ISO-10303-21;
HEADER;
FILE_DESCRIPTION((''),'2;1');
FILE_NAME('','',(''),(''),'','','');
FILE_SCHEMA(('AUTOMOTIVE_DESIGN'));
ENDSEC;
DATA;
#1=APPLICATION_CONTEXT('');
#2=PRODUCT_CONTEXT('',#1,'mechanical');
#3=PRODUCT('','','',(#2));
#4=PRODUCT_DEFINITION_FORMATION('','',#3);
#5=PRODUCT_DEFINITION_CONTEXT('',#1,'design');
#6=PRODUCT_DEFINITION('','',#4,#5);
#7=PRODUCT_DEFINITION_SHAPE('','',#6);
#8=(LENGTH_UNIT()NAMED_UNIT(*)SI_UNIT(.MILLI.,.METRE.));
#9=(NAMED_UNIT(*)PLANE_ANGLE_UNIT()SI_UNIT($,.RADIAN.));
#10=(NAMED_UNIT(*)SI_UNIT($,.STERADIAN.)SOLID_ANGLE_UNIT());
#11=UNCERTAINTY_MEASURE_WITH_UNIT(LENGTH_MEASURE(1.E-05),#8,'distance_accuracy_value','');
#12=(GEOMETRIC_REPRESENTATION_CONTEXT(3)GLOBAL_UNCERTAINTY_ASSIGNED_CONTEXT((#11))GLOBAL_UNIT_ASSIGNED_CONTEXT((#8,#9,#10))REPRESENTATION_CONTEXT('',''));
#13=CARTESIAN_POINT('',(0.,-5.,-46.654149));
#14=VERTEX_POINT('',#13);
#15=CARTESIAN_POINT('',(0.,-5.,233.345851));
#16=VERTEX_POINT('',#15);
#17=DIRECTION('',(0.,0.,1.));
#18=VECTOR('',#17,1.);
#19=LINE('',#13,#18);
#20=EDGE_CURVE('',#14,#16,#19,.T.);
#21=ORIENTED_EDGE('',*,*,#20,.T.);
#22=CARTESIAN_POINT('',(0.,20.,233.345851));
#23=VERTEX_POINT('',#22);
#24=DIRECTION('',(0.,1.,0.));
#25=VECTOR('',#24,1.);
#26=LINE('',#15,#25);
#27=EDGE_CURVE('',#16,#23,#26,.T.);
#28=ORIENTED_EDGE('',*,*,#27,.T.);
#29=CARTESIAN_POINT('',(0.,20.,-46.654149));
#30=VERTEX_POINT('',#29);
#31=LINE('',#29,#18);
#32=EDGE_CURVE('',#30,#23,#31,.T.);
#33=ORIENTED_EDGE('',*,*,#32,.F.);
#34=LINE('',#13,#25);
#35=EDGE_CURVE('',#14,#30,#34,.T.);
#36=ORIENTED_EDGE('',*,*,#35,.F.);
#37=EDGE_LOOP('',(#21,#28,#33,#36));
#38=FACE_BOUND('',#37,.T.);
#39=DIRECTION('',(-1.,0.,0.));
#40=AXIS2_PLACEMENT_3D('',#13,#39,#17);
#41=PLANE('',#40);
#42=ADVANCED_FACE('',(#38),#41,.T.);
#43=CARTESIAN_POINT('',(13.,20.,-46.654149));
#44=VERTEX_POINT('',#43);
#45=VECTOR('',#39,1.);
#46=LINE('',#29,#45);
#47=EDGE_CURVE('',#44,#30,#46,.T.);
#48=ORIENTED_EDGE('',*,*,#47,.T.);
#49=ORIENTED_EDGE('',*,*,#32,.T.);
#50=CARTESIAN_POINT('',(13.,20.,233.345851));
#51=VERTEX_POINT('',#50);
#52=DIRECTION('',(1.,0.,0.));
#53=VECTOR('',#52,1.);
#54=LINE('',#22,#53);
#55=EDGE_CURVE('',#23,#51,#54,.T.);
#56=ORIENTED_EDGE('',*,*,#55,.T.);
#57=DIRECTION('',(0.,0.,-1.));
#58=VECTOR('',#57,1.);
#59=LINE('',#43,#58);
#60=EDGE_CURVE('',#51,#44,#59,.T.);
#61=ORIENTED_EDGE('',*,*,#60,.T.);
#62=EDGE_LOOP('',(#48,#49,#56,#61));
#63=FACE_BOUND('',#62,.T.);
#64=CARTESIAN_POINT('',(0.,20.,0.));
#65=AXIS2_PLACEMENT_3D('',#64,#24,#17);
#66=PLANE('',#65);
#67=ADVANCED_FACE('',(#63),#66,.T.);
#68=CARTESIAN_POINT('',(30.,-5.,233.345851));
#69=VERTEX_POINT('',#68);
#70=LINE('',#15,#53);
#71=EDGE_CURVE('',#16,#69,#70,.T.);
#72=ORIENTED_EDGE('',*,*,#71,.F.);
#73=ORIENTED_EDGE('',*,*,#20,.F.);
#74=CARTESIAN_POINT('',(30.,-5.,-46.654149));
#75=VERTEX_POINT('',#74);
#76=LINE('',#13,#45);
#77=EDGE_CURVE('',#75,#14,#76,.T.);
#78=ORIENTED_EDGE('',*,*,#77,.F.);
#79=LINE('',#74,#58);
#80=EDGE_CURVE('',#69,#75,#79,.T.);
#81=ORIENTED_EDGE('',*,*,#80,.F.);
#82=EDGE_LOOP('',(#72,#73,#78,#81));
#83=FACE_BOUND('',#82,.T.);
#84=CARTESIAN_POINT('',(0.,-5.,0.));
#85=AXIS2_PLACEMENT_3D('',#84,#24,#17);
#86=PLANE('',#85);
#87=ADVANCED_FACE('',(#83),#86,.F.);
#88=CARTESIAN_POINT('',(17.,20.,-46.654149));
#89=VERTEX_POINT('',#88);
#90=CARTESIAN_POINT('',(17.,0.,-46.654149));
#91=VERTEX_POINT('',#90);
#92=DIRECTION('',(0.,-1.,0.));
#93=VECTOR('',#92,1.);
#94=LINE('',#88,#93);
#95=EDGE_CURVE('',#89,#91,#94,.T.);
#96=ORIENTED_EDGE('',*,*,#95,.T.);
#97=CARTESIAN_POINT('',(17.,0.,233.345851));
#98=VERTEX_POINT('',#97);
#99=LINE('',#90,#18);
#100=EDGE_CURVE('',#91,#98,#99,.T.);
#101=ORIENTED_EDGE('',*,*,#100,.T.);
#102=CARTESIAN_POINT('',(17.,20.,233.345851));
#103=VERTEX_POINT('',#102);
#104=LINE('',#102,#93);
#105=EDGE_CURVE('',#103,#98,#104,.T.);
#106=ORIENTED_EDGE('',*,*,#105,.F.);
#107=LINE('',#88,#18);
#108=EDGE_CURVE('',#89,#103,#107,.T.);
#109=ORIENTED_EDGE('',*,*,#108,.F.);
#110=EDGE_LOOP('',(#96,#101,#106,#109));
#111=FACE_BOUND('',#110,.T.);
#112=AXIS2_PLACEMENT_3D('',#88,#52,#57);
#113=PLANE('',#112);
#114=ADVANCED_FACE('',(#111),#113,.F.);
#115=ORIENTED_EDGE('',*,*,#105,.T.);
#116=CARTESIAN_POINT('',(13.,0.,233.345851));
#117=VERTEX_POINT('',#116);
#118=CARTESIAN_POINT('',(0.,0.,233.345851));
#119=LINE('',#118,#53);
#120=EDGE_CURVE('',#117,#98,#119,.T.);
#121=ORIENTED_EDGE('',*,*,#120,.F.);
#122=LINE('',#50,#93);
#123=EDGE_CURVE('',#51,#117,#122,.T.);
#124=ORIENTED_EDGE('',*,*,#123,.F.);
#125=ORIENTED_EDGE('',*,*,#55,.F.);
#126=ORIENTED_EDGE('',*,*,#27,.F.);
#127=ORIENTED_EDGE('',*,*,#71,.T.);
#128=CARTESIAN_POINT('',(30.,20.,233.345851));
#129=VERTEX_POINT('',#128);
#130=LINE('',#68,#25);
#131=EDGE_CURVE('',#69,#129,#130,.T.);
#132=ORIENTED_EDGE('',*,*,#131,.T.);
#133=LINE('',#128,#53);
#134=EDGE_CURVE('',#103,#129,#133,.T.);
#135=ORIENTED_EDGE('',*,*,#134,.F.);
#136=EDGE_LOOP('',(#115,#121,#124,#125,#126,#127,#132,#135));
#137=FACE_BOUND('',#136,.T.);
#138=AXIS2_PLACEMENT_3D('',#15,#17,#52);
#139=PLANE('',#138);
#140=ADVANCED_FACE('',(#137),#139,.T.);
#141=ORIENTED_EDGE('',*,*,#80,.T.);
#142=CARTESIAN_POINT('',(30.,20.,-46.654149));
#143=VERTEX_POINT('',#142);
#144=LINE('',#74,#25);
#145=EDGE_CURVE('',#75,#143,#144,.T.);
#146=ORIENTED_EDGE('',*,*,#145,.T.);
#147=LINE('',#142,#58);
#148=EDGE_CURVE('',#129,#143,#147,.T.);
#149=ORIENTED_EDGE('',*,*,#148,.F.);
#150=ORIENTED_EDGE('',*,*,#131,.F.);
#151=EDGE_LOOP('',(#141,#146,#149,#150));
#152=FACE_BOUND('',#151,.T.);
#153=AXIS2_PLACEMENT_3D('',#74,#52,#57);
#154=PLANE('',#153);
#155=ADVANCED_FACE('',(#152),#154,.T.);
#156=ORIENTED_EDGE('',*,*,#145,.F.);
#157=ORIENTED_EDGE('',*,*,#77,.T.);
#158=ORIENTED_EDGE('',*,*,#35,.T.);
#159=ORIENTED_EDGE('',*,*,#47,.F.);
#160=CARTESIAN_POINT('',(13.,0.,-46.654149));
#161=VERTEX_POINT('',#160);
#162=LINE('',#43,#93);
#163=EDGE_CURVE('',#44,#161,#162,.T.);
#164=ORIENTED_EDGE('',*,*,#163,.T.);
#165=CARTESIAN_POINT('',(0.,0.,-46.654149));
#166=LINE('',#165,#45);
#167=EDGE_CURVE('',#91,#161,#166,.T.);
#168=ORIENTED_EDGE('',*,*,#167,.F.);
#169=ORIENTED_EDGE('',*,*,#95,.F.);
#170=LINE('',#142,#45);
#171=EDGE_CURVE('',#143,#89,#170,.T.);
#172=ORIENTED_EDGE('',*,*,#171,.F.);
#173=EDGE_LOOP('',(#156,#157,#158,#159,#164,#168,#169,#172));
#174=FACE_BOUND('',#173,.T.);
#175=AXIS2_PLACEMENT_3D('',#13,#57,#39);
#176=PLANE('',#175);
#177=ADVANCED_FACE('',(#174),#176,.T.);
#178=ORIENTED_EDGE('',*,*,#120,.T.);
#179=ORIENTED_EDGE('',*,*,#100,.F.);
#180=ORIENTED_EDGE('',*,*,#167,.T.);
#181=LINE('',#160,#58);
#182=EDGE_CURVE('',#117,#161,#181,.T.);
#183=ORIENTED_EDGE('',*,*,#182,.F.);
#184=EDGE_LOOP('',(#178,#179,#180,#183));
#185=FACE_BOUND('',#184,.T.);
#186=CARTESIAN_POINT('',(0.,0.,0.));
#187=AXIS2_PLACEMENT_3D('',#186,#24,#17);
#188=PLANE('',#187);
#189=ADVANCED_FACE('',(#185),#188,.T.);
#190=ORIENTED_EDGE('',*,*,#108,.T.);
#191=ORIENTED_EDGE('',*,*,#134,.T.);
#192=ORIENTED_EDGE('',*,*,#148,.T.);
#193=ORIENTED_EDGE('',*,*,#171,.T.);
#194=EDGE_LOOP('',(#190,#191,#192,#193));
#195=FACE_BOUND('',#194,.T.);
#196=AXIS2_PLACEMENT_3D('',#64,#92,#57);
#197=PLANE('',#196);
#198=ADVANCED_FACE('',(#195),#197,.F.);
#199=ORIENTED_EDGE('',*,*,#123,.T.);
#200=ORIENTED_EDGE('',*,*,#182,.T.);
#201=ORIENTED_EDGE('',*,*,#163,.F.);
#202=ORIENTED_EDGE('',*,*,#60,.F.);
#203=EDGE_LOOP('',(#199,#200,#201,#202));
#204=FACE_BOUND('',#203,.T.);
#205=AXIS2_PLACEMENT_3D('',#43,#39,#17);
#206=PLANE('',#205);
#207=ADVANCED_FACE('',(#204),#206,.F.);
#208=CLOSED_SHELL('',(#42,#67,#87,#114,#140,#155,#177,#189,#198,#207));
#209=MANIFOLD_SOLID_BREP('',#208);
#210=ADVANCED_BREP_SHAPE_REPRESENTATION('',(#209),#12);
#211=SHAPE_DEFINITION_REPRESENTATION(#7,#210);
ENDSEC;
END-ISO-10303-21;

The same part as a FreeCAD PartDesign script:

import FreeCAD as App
import Part
import Sketcher
Q = App.Units.Quantity


def add_polygon(sketch, points):
    """Adds a closed chain of lines whose ends are joined by coincident constraints."""
    first, n = sketch.GeometryCount, len(points)
    for a, b in zip(points, points[1:] + points[:1]):
        sketch.addGeometry(Part.LineSegment(App.Vector(*a, 0), App.Vector(*b, 0)), False)
    for i in range(n):
        sketch.addConstraint(Sketcher.Constraint("Coincident", first + i, 2, first + (i + 1) % n, 1))

doc = App.newDocument("Part")
params = doc.addObject("Spreadsheet::Sheet", "Params")
for row, (alias, value) in enumerate([
    ("sketch1_width", "30 mm"),
    ("sketch1_height", "280 mm"),
    ("pad1_length", "5 mm"),
    ("sketch2_width", "13 mm"),
    ("sketch2_height", "280 mm"),
    ("pad2_length", "20 mm"),
], start=1):
    params.set(f"A{row}", alias)
    params.set(f"B{row}", "=" + value)
    params.setAlias(f"B{row}", alias)

body = doc.addObject("PartDesign::Body", "Body")

# Sketch on XZ plane
sketch1 = body.newObject("Sketcher::SketchObject", "Sketch")
sketch1.AttachmentSupport = (doc.getObject("XZ_Plane"), [""])
sketch1.MapMode = "FlatFace"
add_polygon(sketch1, [(0, -47), (0, 233), (30, 233), (30, -47)])  # lines 0-3
sketch1.addConstraint([
    Sketcher.Constraint("Vertical", 0),
    Sketcher.Constraint("Horizontal", 1),
    Sketcher.Constraint("Vertical", 2),
    Sketcher.Constraint("Horizontal", 3),
    Sketcher.Constraint("PointOnObject", 0, 2, -2),
    Sketcher.Constraint("DistanceX", 1, 1, 1, 2, Q("30 mm")),
    Sketcher.Constraint("DistanceY", 0, 1, 0, 2, Q("280 mm")),
    Sketcher.Constraint("DistanceY", -1, 1, 0, 2, Q("233.345851 mm")),
])
sketch1.setExpression("Constraints[9]", "Params.sketch1_width")
sketch1.setExpression("Constraints[10]", "Params.sketch1_height")
pad1 = body.newObject("PartDesign::Pad", "Pad")
pad1.Profile = sketch1
pad1.setExpression("Length", "Params.pad1_length")

# Sketch on XZ plane
sketch2 = body.newObject("Sketcher::SketchObject", "Sketch001")
sketch2.AttachmentSupport = (doc.getObject("XZ_Plane"), [""])
sketch2.MapMode = "FlatFace"
add_polygon(sketch2, [(0, -47), (0, 233), (13, 233), (13, -47)])  # lines 0-3
add_polygon(sketch2, [(17, -47), (17, 233), (30, 233), (30, -47)])  # lines 4-7
sketch2.addConstraint([
    Sketcher.Constraint("Vertical", 0),
    Sketcher.Constraint("Horizontal", 1),
    Sketcher.Constraint("Vertical", 2),
    Sketcher.Constraint("Horizontal", 3),
    Sketcher.Constraint("Vertical", 4),
    Sketcher.Constraint("Horizontal", 5),
    Sketcher.Constraint("Vertical", 6),
    Sketcher.Constraint("Horizontal", 7),
    Sketcher.Constraint("PointOnObject", 0, 2, -2),
    Sketcher.Constraint("Horizontal", 1, 2, 4, 2),
    Sketcher.Constraint("Horizontal", 3, 2, 6, 2),
    Sketcher.Constraint("Equal", 3, 5),
    Sketcher.Constraint("DistanceX", 1, 1, 1, 2, Q("13 mm")),
    Sketcher.Constraint("DistanceY", 0, 1, 0, 2, Q("280 mm")),
    Sketcher.Constraint("DistanceX", -1, 1, 4, 2, Q("17 mm")),
    Sketcher.Constraint("DistanceY", -1, 1, 0, 2, Q("233.345851 mm")),
])
sketch2.setExpression("Constraints[20]", "Params.sketch2_width")
sketch2.setExpression("Constraints[21]", "Params.sketch2_height")
pad2 = body.newObject("PartDesign::Pad", "Pad001")
pad2.Profile = sketch2
pad2.setExpression("Length", "Params.pad2_length")
pad2.Reversed = True

doc.recompute()
